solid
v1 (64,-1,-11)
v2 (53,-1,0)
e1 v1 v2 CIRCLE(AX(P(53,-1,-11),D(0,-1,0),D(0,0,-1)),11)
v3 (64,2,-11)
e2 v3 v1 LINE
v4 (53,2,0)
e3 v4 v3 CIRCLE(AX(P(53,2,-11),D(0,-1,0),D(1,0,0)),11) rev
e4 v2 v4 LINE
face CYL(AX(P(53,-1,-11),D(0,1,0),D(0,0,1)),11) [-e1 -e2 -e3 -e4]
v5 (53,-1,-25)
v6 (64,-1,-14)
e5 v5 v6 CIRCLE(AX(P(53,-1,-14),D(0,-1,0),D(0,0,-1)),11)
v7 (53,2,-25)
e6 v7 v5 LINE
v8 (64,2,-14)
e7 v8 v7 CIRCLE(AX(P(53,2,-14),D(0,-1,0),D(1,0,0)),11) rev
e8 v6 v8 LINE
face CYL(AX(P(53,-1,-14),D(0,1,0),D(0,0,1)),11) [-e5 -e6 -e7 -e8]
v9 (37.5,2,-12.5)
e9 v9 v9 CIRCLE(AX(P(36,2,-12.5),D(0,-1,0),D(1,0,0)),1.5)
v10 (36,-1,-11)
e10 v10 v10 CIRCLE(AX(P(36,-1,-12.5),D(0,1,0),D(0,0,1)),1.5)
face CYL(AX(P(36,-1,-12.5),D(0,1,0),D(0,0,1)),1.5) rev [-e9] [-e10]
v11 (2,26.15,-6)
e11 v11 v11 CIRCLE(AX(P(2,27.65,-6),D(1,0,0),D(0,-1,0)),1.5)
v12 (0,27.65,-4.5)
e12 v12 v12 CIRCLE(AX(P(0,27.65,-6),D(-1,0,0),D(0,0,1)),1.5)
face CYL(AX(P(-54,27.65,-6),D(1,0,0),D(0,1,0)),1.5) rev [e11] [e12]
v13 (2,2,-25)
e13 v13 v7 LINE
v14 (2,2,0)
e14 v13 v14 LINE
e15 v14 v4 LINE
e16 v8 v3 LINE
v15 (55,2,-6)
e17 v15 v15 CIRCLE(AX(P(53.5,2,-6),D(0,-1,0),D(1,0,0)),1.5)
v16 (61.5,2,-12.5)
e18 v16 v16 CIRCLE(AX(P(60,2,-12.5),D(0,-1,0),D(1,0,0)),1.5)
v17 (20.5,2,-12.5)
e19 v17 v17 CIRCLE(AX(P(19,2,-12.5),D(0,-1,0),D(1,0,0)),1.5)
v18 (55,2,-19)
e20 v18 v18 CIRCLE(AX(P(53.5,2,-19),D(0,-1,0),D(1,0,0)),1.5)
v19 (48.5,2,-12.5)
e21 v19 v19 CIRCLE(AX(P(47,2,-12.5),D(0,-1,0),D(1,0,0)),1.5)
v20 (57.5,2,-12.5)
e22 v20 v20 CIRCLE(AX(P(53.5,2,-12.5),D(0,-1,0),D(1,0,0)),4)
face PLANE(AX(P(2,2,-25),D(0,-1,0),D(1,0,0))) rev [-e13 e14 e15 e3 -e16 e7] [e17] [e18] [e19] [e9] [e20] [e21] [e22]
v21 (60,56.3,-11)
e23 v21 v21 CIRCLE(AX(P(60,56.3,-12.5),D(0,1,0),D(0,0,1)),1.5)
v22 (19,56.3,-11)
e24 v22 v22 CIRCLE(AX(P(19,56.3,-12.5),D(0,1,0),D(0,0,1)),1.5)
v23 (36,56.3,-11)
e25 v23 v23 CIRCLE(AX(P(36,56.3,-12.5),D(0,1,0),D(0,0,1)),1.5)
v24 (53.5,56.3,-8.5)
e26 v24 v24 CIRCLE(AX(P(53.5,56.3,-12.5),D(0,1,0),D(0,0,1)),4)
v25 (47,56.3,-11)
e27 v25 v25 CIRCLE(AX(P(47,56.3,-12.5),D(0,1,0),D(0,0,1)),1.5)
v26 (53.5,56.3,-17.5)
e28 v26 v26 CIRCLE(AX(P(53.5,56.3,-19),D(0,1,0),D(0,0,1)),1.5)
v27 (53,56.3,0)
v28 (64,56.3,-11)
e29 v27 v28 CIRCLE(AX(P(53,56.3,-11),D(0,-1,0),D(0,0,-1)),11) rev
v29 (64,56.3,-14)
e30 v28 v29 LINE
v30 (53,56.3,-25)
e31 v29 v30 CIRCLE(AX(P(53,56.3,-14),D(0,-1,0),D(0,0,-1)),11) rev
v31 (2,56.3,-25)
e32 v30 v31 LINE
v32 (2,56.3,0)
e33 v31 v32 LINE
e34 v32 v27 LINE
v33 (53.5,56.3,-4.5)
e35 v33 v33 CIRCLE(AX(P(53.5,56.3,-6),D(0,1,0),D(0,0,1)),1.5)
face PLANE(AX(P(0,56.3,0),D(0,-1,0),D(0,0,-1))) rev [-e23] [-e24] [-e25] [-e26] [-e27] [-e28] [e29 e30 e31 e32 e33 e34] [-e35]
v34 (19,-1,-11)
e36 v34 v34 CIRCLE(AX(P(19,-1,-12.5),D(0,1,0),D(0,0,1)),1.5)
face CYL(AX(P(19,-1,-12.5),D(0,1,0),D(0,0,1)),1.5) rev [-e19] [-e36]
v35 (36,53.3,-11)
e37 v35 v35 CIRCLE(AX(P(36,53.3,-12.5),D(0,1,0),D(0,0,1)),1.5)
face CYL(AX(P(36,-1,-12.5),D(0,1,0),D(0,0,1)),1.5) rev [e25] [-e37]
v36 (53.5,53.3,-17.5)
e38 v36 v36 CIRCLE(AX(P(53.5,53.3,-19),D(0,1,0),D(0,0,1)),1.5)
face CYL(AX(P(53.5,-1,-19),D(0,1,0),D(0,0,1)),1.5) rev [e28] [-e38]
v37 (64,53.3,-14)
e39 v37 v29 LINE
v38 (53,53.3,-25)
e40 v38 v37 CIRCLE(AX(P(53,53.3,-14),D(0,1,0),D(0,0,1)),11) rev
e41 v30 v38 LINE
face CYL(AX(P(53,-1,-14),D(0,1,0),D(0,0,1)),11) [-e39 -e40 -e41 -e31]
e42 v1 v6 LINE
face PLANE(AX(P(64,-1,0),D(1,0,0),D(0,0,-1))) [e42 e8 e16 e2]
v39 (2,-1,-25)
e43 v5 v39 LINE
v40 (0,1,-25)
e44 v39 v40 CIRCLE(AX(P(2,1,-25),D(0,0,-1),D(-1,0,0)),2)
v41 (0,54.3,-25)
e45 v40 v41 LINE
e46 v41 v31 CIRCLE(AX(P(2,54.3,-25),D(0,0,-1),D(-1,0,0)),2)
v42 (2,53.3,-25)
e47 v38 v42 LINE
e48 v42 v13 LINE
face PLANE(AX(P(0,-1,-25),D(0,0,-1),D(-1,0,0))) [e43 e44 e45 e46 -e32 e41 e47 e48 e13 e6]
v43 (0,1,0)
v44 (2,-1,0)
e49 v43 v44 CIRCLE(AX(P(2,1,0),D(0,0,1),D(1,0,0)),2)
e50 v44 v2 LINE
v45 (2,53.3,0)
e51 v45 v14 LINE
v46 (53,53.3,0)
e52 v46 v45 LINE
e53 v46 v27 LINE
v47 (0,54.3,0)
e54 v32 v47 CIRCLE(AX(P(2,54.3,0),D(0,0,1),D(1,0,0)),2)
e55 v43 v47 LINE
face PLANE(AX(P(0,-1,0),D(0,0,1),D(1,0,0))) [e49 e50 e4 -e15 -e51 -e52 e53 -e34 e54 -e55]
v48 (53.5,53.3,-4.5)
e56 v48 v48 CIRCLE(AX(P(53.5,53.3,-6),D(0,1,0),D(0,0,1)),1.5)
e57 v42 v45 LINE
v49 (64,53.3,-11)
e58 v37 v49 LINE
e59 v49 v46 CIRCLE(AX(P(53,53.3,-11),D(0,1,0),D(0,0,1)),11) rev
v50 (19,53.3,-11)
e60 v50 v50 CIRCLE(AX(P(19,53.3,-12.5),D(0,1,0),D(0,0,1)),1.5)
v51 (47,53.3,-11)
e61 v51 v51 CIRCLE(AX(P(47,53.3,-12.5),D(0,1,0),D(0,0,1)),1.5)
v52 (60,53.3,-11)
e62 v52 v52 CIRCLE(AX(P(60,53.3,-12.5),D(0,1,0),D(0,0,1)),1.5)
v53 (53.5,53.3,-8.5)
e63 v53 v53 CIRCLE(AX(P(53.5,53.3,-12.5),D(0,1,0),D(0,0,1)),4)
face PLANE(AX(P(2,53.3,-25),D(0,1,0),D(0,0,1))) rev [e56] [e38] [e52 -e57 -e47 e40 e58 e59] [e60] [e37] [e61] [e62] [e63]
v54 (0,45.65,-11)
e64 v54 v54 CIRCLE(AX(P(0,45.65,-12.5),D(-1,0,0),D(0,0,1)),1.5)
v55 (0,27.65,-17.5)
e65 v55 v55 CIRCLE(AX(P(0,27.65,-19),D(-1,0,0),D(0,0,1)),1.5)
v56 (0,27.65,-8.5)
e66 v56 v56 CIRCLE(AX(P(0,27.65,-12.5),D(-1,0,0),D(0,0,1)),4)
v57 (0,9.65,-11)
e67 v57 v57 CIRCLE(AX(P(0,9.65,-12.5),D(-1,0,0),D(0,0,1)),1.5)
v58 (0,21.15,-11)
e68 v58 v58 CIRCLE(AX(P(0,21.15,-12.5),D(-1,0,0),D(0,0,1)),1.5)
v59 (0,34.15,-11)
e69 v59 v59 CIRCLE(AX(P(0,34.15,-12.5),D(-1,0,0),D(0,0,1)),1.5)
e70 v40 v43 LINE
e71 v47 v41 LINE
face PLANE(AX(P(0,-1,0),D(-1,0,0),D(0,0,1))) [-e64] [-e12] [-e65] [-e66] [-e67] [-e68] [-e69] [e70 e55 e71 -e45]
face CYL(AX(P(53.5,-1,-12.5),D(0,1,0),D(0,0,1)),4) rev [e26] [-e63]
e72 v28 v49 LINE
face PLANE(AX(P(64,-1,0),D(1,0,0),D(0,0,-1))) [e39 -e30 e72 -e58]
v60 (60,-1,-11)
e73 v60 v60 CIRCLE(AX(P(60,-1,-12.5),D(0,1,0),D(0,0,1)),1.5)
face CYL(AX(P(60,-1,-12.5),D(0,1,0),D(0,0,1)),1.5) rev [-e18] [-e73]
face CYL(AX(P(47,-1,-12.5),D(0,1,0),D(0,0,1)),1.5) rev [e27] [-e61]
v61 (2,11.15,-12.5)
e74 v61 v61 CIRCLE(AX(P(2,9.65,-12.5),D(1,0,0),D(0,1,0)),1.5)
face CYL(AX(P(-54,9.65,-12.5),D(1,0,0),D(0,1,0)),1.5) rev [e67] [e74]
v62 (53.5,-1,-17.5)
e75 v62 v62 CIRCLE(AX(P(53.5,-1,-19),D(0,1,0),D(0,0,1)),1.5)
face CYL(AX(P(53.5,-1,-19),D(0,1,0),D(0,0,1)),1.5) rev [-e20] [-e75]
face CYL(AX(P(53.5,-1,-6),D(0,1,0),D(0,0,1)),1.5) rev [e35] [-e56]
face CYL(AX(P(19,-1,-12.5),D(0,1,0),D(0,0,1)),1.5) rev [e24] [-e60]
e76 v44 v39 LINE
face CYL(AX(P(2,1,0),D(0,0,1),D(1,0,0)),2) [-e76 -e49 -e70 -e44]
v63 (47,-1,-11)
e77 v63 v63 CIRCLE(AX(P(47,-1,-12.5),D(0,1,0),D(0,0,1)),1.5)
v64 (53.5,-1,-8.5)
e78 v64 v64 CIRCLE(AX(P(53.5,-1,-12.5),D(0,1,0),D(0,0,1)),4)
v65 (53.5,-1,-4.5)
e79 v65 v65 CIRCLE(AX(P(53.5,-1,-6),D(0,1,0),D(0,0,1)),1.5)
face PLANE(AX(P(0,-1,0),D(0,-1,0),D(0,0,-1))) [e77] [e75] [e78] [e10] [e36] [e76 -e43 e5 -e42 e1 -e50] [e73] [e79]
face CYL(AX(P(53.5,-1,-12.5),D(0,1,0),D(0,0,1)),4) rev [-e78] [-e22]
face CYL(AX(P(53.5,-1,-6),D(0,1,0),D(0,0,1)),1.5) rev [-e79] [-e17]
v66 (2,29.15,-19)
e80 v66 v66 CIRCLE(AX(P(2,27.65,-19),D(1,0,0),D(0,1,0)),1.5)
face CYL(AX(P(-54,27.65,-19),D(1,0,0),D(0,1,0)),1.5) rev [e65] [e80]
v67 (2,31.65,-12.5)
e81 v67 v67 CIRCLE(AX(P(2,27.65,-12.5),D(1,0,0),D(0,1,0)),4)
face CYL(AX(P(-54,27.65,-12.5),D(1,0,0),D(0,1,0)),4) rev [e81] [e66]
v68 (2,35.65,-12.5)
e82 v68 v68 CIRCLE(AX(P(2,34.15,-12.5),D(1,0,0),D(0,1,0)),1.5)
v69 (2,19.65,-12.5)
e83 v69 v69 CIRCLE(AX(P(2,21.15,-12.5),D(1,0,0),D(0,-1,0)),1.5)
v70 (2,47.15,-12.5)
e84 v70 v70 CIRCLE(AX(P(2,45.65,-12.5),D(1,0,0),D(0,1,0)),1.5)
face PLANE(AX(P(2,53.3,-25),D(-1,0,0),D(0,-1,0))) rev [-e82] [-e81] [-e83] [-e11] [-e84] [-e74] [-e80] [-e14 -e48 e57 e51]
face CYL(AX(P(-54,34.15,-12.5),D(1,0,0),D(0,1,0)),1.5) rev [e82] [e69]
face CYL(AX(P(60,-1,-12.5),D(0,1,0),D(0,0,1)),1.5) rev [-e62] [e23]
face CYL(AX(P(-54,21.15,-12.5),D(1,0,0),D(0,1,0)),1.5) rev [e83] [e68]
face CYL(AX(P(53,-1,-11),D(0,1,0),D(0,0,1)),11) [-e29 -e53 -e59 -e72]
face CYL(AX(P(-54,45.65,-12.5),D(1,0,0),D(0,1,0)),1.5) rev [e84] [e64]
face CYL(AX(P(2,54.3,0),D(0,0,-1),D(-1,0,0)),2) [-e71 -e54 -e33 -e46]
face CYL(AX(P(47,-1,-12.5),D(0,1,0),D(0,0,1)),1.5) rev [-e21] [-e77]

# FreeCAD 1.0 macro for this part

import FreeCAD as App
import Part
import Sketcher

V = App.Vector


def edges_at(feature, points):
    """Names of the edges that pass closest to the given points."""
    edges = feature.Shape.Edges
    near = lambda p: min(range(len(edges)), key=lambda i: edges[i].distToShape(Part.Vertex(*p))[0])
    return sorted({f"Edge{near(p) + 1}" for p in points})

doc = App.newDocument("Part")
body = doc.addObject("PartDesign::Body", "Body")

sketch1 = body.newObject("Sketcher::SketchObject", "Sketch")
sketch1.AttachmentSupport = (doc.getObject("XZ_Plane"), [""])
sketch1.MapMode = "FlatFace"
sketch1.addGeometry(Part.LineSegment(V(0, -25, 0), V(0, 0, 0)), False)
sketch1.addGeometry(Part.LineSegment(V(0, 0, 0), V(64, 0, 0)), False)
sketch1.addGeometry(Part.LineSegment(V(64, 0, 0), V(64, -25, 0)), False)
sketch1.addGeometry(Part.LineSegment(V(64, -25, 0), V(0, -25, 0)), False)
sketch1.addConstraint(Sketcher.Constraint("Coincident", 0, 2, 1, 1))
sketch1.addConstraint(Sketcher.Constraint("Coincident", 1, 2, 2, 1))
sketch1.addConstraint(Sketcher.Constraint("Coincident", 2, 2, 3, 1))
sketch1.addConstraint(Sketcher.Constraint("Coincident", 3, 2, 0, 1))
sketch1.addConstraint(Sketcher.Constraint("Vertical", 0))
sketch1.addConstraint(Sketcher.Constraint("Horizontal", 1))
sketch1.addConstraint(Sketcher.Constraint("Vertical", 2))
sketch1.addConstraint(Sketcher.Constraint("Horizontal", 3))
sketch1.addConstraint(Sketcher.Constraint("Coincident", 0, 2, -1, 1))
sketch1.addConstraint(Sketcher.Constraint("DistanceX", 1, 1, 1, 2, 64.0))
sketch1.addConstraint(Sketcher.Constraint("DistanceY", 0, 1, 0, 2, 25.0))
pad1 = body.newObject("PartDesign::Pad", "Pad")
pad1.Profile = sketch1
pad1.Type = "TwoLengths"
pad1.Length = 56.3
pad1.Length2 = 1
pad1.Reversed = True

sketch2 = body.newObject("Sketcher::SketchObject", "Sketch001")
sketch2.AttachmentSupport = (doc.getObject("XY_Plane"), [""])
sketch2.MapMode = "FlatFace"
sketch2.addGeometry(Part.LineSegment(V(2, 53, 0), V(2, 2, 0)), False)
sketch2.addGeometry(Part.LineSegment(V(2, 2, 0), V(64, 2, 0)), False)
sketch2.addGeometry(Part.LineSegment(V(64, 2, 0), V(64, 53, 0)), False)
sketch2.addGeometry(Part.LineSegment(V(64, 53, 0), V(2, 53, 0)), False)
sketch2.addConstraint(Sketcher.Constraint("Coincident", 0, 2, 1, 1))
sketch2.addConstraint(Sketcher.Constraint("Coincident", 1, 2, 2, 1))
sketch2.addConstraint(Sketcher.Constraint("Coincident", 2, 2, 3, 1))
sketch2.addConstraint(Sketcher.Constraint("Coincident", 3, 2, 0, 1))
sketch2.addConstraint(Sketcher.Constraint("Vertical", 0))
sketch2.addConstraint(Sketcher.Constraint("Horizontal", 1))
sketch2.addConstraint(Sketcher.Constraint("Vertical", 2))
sketch2.addConstraint(Sketcher.Constraint("Horizontal", 3))
sketch2.addConstraint(Sketcher.Constraint("DistanceX", 1, 1, 1, 2, 62.0))
sketch2.addConstraint(Sketcher.Constraint("DistanceY", 0, 2, 0, 1, 51.3))
sketch2.addConstraint(Sketcher.Constraint("DistanceX", -1, 1, 0, 2, 2.0))
sketch2.addConstraint(Sketcher.Constraint("DistanceY", -1, 1, 0, 2, 2.0))
pocket1 = body.newObject("PartDesign::Pocket", "Pocket")
pocket1.Profile = sketch2
pocket1.Type = "ThroughAll"

sketch3 = body.newObject("Sketcher::SketchObject", "Sketch002")
sketch3.AttachmentSupport = (doc.getObject("YZ_Plane"), [""])
sketch3.MapMode = "FlatFace"
sketch3.AttachmentOffset = App.Placement(V(0, 0, 2), App.Rotation())
sketch3.addGeometry(Part.Circle(V(27.6, -12.5, 0), V(0, 0, 1), 4), False)
sketch3.addGeometry(Part.Circle(V(27.6, -19, 0), V(0, 0, 1), 1.5), False)
sketch3.addGeometry(Part.Circle(V(34.1, -12.5, 0), V(0, 0, 1), 1.5), False)
sketch3.addGeometry(Part.Circle(V(27.6, -6, 0), V(0, 0, 1), 1.5), False)
sketch3.addGeometry(Part.Circle(V(21.1, -12.5, 0), V(0, 0, 1), 1.5), False)
sketch3.addConstraint(Sketcher.Constraint("Equal", 1, 2))
sketch3.addConstraint(Sketcher.Constraint("Equal", 2, 3))
sketch3.addConstraint(Sketcher.Constraint("Equal", 3, 4))
sketch3.addConstraint(Sketcher.Constraint("Horizontal", 0, 3, 2, 3))
sketch3.addConstraint(Sketcher.Constraint("Horizontal", 2, 3, 4, 3))
sketch3.addConstraint(Sketcher.Constraint("Vertical", 0, 3, 1, 3))
sketch3.addConstraint(Sketcher.Constraint("Vertical", 1, 3, 3, 3))
sketch3.addConstraint(Sketcher.Constraint("Diameter", 0, 8.0))
sketch3.addConstraint(Sketcher.Constraint("Diameter", 1, 3.0))
sketch3.addConstraint(Sketcher.Constraint("DistanceY", 1, 3, -1, 1, 19.0))
sketch3.addConstraint(Sketcher.Constraint("DistanceY", 3, 3, -1, 1, 6.0))
sketch3.addConstraint(Sketcher.Constraint("DistanceX", 4, 3, 2, 3, 13.0))
sketch3.addConstraint(Sketcher.Constraint("DistanceY", 0, 3, -1, 1, 12.5))
sketch3.addConstraint(Sketcher.Constraint("DistanceX", 0, 3, 2, 3, 6.5))
sketch3.addConstraint(Sketcher.Constraint("DistanceX", -1, 1, 0, 3, 27.65))
pocket2 = body.newObject("PartDesign::Pocket", "Pocket001")
pocket2.Profile = sketch3
pocket2.Length = 56

sketch4 = body.newObject("Sketcher::SketchObject", "Sketch003")
sketch4.AttachmentSupport = (doc.getObject("YZ_Plane"), [""])
sketch4.MapMode = "FlatFace"
sketch4.AttachmentOffset = App.Placement(V(0, 0, 2), App.Rotation())
sketch4.addGeometry(Part.Circle(V(45.6, -12.5, 0), V(0, 0, 1), 1.5), False)
sketch4.addGeometry(Part.Circle(V(9.7, -12.5, 0), V(0, 0, 1), 1.5), False)
sketch4.addConstraint(Sketcher.Constraint("Equal", 0, 1))
sketch4.addConstraint(Sketcher.Constraint("Horizontal", 0, 3, 1, 3))
sketch4.addConstraint(Sketcher.Constraint("Diameter", 0, 3.0))
sketch4.addConstraint(Sketcher.Constraint("DistanceX", 1, 3, 0, 3, 36.0))
sketch4.addConstraint(Sketcher.Constraint("DistanceY", 0, 3, -1, 1, 12.5))
sketch4.addConstraint(Sketcher.Constraint("DistanceX", -1, 1, 0, 3, 45.65))
pocket3 = body.newObject("PartDesign::Pocket", "Pocket002")
pocket3.Profile = sketch4
pocket3.Length = 56
doc.recompute()

fillet = body.newObject("PartDesign::Fillet", "Fillet")
fillet.Base = (pocket3, edges_at(pocket3, [(0, 56.3, -12.5), (0, -1, -12.5)]))
fillet.Radius = 2

sketch5 = body.newObject("Sketcher::SketchObject", "Sketch004")
sketch5.AttachmentSupport = (doc.getObject("XZ_Plane"), [""])
sketch5.MapMode = "FlatFace"
sketch5.AttachmentOffset = App.Placement(V(0, 0, -56.3), App.Rotation())
sketch5.addGeometry(Part.Circle(V(60, -12.5, 0), V(0, 0, 1), 1.5), False)
sketch5.addGeometry(Part.Circle(V(53.5, -12.5, 0), V(0, 0, 1), 4), False)
sketch5.addGeometry(Part.Circle(V(53.5, -19, 0), V(0, 0, 1), 1.5), False)
sketch5.addGeometry(Part.Circle(V(47, -12.5, 0), V(0, 0, 1), 1.5), False)
sketch5.addGeometry(Part.Circle(V(53.5, -6, 0), V(0, 0, 1), 1.5), False)
sketch5.addConstraint(Sketcher.Constraint("Equal", 0, 2))
sketch5.addConstraint(Sketcher.Constraint("Equal", 2, 3))
sketch5.addConstraint(Sketcher.Constraint("Equal", 3, 4))
sketch5.addConstraint(Sketcher.Constraint("Horizontal", 0, 3, 1, 3))
sketch5.addConstraint(Sketcher.Constraint("Horizontal", 1, 3, 3, 3))
sketch5.addConstraint(Sketcher.Constraint("Vertical", 1, 3, 2, 3))
sketch5.addConstraint(Sketcher.Constraint("Vertical", 2, 3, 4, 3))
sketch5.addConstraint(Sketcher.Constraint("Diameter", 0, 3.0))
sketch5.addConstraint(Sketcher.Constraint("Diameter", 1, 8.0))
sketch5.addConstraint(Sketcher.Constraint("DistanceX", -1, 1, 0, 3, 60.0))
sketch5.addConstraint(Sketcher.Constraint("DistanceY", 2, 3, -1, 1, 19.0))
sketch5.addConstraint(Sketcher.Constraint("DistanceX", -1, 1, 3, 3, 47.0))
sketch5.addConstraint(Sketcher.Constraint("DistanceY", 4, 3, -1, 1, 6.0))
sketch5.addConstraint(Sketcher.Constraint("DistanceY", 0, 3, -1, 1, 12.5))
sketch5.addConstraint(Sketcher.Constraint("DistanceX", -1, 1, 1, 3, 53.5))
pocket4 = body.newObject("PartDesign::Pocket", "Pocket003")
pocket4.Profile = sketch5
pocket4.Type = "ThroughAll"
pocket4.Reversed = True
doc.recompute()

fillet2 = body.newObject("PartDesign::Fillet", "Fillet001")
fillet2.Base = (pocket4, edges_at(pocket4, [
    (64, 54.8, 0),
    (64, 54.8, -25),
    (64, 0.5, -25),
    (64, 0.5, 0),
]))
fillet2.Radius = 11

sketch6 = body.newObject("Sketcher::SketchObject", "Sketch005")
sketch6.AttachmentSupport = (doc.getObject("XZ_Plane"), [""])
sketch6.MapMode = "FlatFace"
sketch6.AttachmentOffset = App.Placement(V(0, 0, -56.3), App.Rotation())
sketch6.addGeometry(Part.Circle(V(36, -12.5, 0), V(0, 0, 1), 1.5), False)
sketch6.addGeometry(Part.Circle(V(19, -12.5, 0), V(0, 0, 1), 1.5), False)
sketch6.addConstraint(Sketcher.Constraint("Equal", 0, 1))
sketch6.addConstraint(Sketcher.Constraint("Horizontal", 0, 3, 1, 3))
sketch6.addConstraint(Sketcher.Constraint("Diameter", 0, 3.0))
sketch6.addConstraint(Sketcher.Constraint("DistanceX", -1, 1, 0, 3, 36.0))
sketch6.addConstraint(Sketcher.Constraint("DistanceX", -1, 1, 1, 3, 19.0))
sketch6.addConstraint(Sketcher.Constraint("DistanceY", 0, 3, -1, 1, 12.5))
pocket5 = body.newObject("PartDesign::Pocket", "Pocket004")
pocket5.Profile = sketch6
pocket5.Type = "ThroughAll"
pocket5.Reversed = True

doc.recompute()
